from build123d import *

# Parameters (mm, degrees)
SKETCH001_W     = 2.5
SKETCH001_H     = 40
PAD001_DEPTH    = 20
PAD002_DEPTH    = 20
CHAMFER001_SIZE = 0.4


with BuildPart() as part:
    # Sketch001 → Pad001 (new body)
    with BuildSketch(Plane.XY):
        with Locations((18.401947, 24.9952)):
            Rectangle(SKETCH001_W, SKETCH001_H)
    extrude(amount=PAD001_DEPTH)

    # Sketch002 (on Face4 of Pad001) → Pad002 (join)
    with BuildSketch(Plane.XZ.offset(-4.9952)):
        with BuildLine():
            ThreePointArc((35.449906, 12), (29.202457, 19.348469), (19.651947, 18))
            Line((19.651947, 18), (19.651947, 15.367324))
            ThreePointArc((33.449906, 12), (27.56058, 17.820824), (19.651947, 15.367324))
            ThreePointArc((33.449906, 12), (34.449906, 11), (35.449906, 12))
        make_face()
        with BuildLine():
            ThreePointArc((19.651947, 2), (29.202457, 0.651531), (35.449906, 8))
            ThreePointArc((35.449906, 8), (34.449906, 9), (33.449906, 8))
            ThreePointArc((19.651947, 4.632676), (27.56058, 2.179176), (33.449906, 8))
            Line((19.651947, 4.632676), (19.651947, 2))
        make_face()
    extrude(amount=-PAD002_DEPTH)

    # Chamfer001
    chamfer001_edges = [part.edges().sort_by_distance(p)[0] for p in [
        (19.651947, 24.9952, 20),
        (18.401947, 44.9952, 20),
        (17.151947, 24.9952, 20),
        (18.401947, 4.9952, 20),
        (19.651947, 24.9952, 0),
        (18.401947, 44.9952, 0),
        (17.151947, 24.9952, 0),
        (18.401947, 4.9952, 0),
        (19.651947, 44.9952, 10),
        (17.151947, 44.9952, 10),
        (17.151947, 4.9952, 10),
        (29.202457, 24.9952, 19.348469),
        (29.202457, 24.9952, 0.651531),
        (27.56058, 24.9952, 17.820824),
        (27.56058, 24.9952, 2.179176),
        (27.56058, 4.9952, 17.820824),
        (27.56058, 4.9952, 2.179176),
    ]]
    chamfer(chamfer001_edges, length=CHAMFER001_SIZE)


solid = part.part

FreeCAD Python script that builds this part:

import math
import FreeCAD as App
import Part
import Sketcher


def edges_at(feature, points):
    """Names of the edges that pass closest to the given points."""
    edges = feature.Shape.Edges
    near = lambda p: min(range(len(edges)), key=lambda i: edges[i].distToShape(Part.Vertex(*p))[0])
    return sorted({f"Edge{near(p) + 1}" for p in points})


def add_polygon(sketch, points):
    """Adds a closed chain of lines whose ends are joined by coincident constraints."""
    first, n = sketch.GeometryCount, len(points)
    for a, b in zip(points, points[1:] + points[:1]):
        sketch.addGeometry(Part.LineSegment(App.Vector(*a, 0), App.Vector(*b, 0)), False)
    for i in range(n):
        sketch.addConstraint(Sketcher.Constraint("Coincident", first + i, 2, first + (i + 1) % n, 1))

doc = App.newDocument("Part")
params = doc.addObject("Spreadsheet::Sheet", "Params")
for row, (alias, value) in enumerate([
    ("sketch1_height", "40 mm"),
    ("sketch1_width", "2.5 mm"),
    ("pad1_length", "20 mm"),
    ("sketch2_radius", "10 mm"),
    ("sketch2_radius2", "1 mm"),
    ("pad2_length", "20 mm"),
    ("chamfer_size", "0.4 mm"),
], start=1):
    params.set(f"A{row}", alias)
    params.set(f"B{row}", "=" + value)
    params.setAlias(f"B{row}", alias)

body = doc.addObject("PartDesign::Body", "Body")

# Sketch on XY plane
sketch1 = doc.addObject("Sketcher::SketchObject", "Sketch")
body.addObject(sketch1)
sketch1.AttachmentSupport = (doc.XY_Plane, [""])
sketch1.MapMode = "FlatFace"
add_polygon(sketch1, [(17.2, 45), (17.2, 5), (19.7, 5), (19.7, 45)])  # lines 0-3
sketch1.addConstraint([
    Sketcher.Constraint("Vertical", 0),
    Sketcher.Constraint("Horizontal", 1),
    Sketcher.Constraint("Vertical", 2),
    Sketcher.Constraint("Horizontal", 3),
    Sketcher.Constraint("DistanceY", 0, 2, 0, 1, 40.0),
    Sketcher.Constraint("DistanceX", 1, 1, 1, 2, 2.5),
    Sketcher.Constraint("DistanceY", -1, 1, 0, 2, 4.9952),
    Sketcher.Constraint("DistanceX", -1, 1, 0, 2, 17.151947),
])
sketch1.setExpression("Constraints[8]", "Params.sketch1_height")
sketch1.setExpression("Constraints[9]", "Params.sketch1_width")
pad1 = doc.addObject("PartDesign::Pad", "Pad")
body.addObject(pad1)
pad1.Profile = sketch1
pad1.setExpression("Length", "Params.pad1_length")

# Sketch on XZ plane
sketch2 = doc.addObject("Sketcher::SketchObject", "Sketch001")
body.addObject(sketch2)
sketch2.AttachmentSupport = (doc.XZ_Plane, [""])
sketch2.MapMode = "FlatFace"
sketch2.AttachmentOffset = App.Placement(App.Vector(0, 0, -4.9952), App.Rotation())
sketch2.addGeometry([
    Part.ArcOfCircle(Part.Circle(App.Vector(25.7, 10, 0), App.Vector(0, 0, 1), 10), math.radians(12), math.radians(127)),  # 0
    Part.LineSegment(App.Vector(19.7, 18, 0), App.Vector(19.7, 15.4, 0)),  # 1
    Part.ArcOfCircle(Part.Circle(App.Vector(25.7, 10, 0), App.Vector(0, 0, 1), 8.1), math.radians(14), math.radians(138)),  # 2
    Part.ArcOfCircle(Part.Circle(App.Vector(34.4, 12, 0), App.Vector(0, 0, 1), 1), math.radians(180), math.radians(360)),  # 3
    Part.ArcOfCircle(Part.Circle(App.Vector(25.7, 10, 0), App.Vector(0, 0, 1), 10), math.radians(-127), math.radians(-12)),  # 4
    Part.ArcOfCircle(Part.Circle(App.Vector(34.4, 8, 0), App.Vector(0, 0, 1), 1), math.radians(0), math.radians(180)),  # 5
    Part.ArcOfCircle(Part.Circle(App.Vector(25.7, 10, 0), App.Vector(0, 0, 1), 8.1), math.radians(-138), math.radians(-14)),  # 6
    Part.LineSegment(App.Vector(19.7, 4.6, 0), App.Vector(19.7, 2, 0)),  # 7
], False)
sketch2.addConstraint([
    Sketcher.Constraint("Coincident", 0, 2, 1, 1),
    Sketcher.Constraint("Coincident", 1, 2, 2, 2),
    Sketcher.Constraint("Coincident", 2, 1, 3, 1),
    Sketcher.Constraint("Coincident", 3, 2, 0, 1),
    Sketcher.Constraint("Coincident", 4, 2, 5, 1),
    Sketcher.Constraint("Coincident", 5, 2, 6, 2),
    Sketcher.Constraint("Coincident", 6, 1, 7, 1),
    Sketcher.Constraint("Coincident", 7, 2, 4, 1),
    Sketcher.Constraint("Vertical", 1),
    Sketcher.Constraint("Vertical", 7),
    Sketcher.Constraint("Coincident", 2, 3, 0, 3),
    Sketcher.Constraint("Coincident", 4, 3, 0, 3),
    Sketcher.Constraint("Coincident", 6, 3, 0, 3),
    Sketcher.Constraint("Equal", 0, 4),
    Sketcher.Constraint("Equal", 3, 5),
    Sketcher.Constraint("Equal", 2, 6),
    Sketcher.Constraint("Horizontal", 3, 3, 2, 1),
    Sketcher.Constraint("Horizontal", 2, 1, 3, 2),
    Sketcher.Constraint("Horizontal", 5, 3, 4, 2),
    Sketcher.Constraint("Horizontal", 4, 2, 5, 2),
    Sketcher.Constraint("Vertical", 1, 2, 6, 1),
    Sketcher.Constraint("Radius", 0, 10.0),
    Sketcher.Constraint("Radius", 3, 1.0),
    Sketcher.Constraint("DistanceY", -1, 1, 0, 3, 9.999999),
    Sketcher.Constraint("DistanceY", -1, 1, 3, 3, 12.0),
    Sketcher.Constraint("DistanceY", -1, 1, 0, 2, 18.0),
    Sketcher.Constraint("DistanceX", -1, 1, 0, 3, 25.651947),
])
sketch2.setExpression("Constraints[21]", "Params.sketch2_radius")
sketch2.setExpression("Constraints[22]", "Params.sketch2_radius2")
pad2 = doc.addObject("PartDesign::Pad", "Pad001")
body.addObject(pad2)
pad2.Profile = sketch2
pad2.setExpression("Length", "Params.pad2_length")
pad2.Reversed = True
doc.recompute()

chamfer = doc.addObject("PartDesign::Chamfer", "Chamfer")
body.addObject(chamfer)
chamfer.Base = (pad2, edges_at(pad2, [
    (19.652, 24.995, 20),
    (18.402, 44.995, 20),
    (17.152, 24.995, 20),
    (18.402, 4.995, 20),
    (19.652, 24.995, 0),
    (18.402, 44.995, 0),
    (17.152, 24.995, 0),
    (18.402, 4.995, 0),
    (19.652, 44.995, 10),
    (17.152, 44.995, 10),
    (17.152, 4.995, 10),
    (29.202, 24.995, 19.348),
    (29.202, 24.995, 0.652),
    (27.561, 24.995, 17.821),
    (27.561, 24.995, 2.179),
    (27.561, 4.995, 17.821),
    (27.561, 4.995, 2.179),
]))
chamfer.setExpression("Size", "Params.chamfer_size")

doc.recompute()
